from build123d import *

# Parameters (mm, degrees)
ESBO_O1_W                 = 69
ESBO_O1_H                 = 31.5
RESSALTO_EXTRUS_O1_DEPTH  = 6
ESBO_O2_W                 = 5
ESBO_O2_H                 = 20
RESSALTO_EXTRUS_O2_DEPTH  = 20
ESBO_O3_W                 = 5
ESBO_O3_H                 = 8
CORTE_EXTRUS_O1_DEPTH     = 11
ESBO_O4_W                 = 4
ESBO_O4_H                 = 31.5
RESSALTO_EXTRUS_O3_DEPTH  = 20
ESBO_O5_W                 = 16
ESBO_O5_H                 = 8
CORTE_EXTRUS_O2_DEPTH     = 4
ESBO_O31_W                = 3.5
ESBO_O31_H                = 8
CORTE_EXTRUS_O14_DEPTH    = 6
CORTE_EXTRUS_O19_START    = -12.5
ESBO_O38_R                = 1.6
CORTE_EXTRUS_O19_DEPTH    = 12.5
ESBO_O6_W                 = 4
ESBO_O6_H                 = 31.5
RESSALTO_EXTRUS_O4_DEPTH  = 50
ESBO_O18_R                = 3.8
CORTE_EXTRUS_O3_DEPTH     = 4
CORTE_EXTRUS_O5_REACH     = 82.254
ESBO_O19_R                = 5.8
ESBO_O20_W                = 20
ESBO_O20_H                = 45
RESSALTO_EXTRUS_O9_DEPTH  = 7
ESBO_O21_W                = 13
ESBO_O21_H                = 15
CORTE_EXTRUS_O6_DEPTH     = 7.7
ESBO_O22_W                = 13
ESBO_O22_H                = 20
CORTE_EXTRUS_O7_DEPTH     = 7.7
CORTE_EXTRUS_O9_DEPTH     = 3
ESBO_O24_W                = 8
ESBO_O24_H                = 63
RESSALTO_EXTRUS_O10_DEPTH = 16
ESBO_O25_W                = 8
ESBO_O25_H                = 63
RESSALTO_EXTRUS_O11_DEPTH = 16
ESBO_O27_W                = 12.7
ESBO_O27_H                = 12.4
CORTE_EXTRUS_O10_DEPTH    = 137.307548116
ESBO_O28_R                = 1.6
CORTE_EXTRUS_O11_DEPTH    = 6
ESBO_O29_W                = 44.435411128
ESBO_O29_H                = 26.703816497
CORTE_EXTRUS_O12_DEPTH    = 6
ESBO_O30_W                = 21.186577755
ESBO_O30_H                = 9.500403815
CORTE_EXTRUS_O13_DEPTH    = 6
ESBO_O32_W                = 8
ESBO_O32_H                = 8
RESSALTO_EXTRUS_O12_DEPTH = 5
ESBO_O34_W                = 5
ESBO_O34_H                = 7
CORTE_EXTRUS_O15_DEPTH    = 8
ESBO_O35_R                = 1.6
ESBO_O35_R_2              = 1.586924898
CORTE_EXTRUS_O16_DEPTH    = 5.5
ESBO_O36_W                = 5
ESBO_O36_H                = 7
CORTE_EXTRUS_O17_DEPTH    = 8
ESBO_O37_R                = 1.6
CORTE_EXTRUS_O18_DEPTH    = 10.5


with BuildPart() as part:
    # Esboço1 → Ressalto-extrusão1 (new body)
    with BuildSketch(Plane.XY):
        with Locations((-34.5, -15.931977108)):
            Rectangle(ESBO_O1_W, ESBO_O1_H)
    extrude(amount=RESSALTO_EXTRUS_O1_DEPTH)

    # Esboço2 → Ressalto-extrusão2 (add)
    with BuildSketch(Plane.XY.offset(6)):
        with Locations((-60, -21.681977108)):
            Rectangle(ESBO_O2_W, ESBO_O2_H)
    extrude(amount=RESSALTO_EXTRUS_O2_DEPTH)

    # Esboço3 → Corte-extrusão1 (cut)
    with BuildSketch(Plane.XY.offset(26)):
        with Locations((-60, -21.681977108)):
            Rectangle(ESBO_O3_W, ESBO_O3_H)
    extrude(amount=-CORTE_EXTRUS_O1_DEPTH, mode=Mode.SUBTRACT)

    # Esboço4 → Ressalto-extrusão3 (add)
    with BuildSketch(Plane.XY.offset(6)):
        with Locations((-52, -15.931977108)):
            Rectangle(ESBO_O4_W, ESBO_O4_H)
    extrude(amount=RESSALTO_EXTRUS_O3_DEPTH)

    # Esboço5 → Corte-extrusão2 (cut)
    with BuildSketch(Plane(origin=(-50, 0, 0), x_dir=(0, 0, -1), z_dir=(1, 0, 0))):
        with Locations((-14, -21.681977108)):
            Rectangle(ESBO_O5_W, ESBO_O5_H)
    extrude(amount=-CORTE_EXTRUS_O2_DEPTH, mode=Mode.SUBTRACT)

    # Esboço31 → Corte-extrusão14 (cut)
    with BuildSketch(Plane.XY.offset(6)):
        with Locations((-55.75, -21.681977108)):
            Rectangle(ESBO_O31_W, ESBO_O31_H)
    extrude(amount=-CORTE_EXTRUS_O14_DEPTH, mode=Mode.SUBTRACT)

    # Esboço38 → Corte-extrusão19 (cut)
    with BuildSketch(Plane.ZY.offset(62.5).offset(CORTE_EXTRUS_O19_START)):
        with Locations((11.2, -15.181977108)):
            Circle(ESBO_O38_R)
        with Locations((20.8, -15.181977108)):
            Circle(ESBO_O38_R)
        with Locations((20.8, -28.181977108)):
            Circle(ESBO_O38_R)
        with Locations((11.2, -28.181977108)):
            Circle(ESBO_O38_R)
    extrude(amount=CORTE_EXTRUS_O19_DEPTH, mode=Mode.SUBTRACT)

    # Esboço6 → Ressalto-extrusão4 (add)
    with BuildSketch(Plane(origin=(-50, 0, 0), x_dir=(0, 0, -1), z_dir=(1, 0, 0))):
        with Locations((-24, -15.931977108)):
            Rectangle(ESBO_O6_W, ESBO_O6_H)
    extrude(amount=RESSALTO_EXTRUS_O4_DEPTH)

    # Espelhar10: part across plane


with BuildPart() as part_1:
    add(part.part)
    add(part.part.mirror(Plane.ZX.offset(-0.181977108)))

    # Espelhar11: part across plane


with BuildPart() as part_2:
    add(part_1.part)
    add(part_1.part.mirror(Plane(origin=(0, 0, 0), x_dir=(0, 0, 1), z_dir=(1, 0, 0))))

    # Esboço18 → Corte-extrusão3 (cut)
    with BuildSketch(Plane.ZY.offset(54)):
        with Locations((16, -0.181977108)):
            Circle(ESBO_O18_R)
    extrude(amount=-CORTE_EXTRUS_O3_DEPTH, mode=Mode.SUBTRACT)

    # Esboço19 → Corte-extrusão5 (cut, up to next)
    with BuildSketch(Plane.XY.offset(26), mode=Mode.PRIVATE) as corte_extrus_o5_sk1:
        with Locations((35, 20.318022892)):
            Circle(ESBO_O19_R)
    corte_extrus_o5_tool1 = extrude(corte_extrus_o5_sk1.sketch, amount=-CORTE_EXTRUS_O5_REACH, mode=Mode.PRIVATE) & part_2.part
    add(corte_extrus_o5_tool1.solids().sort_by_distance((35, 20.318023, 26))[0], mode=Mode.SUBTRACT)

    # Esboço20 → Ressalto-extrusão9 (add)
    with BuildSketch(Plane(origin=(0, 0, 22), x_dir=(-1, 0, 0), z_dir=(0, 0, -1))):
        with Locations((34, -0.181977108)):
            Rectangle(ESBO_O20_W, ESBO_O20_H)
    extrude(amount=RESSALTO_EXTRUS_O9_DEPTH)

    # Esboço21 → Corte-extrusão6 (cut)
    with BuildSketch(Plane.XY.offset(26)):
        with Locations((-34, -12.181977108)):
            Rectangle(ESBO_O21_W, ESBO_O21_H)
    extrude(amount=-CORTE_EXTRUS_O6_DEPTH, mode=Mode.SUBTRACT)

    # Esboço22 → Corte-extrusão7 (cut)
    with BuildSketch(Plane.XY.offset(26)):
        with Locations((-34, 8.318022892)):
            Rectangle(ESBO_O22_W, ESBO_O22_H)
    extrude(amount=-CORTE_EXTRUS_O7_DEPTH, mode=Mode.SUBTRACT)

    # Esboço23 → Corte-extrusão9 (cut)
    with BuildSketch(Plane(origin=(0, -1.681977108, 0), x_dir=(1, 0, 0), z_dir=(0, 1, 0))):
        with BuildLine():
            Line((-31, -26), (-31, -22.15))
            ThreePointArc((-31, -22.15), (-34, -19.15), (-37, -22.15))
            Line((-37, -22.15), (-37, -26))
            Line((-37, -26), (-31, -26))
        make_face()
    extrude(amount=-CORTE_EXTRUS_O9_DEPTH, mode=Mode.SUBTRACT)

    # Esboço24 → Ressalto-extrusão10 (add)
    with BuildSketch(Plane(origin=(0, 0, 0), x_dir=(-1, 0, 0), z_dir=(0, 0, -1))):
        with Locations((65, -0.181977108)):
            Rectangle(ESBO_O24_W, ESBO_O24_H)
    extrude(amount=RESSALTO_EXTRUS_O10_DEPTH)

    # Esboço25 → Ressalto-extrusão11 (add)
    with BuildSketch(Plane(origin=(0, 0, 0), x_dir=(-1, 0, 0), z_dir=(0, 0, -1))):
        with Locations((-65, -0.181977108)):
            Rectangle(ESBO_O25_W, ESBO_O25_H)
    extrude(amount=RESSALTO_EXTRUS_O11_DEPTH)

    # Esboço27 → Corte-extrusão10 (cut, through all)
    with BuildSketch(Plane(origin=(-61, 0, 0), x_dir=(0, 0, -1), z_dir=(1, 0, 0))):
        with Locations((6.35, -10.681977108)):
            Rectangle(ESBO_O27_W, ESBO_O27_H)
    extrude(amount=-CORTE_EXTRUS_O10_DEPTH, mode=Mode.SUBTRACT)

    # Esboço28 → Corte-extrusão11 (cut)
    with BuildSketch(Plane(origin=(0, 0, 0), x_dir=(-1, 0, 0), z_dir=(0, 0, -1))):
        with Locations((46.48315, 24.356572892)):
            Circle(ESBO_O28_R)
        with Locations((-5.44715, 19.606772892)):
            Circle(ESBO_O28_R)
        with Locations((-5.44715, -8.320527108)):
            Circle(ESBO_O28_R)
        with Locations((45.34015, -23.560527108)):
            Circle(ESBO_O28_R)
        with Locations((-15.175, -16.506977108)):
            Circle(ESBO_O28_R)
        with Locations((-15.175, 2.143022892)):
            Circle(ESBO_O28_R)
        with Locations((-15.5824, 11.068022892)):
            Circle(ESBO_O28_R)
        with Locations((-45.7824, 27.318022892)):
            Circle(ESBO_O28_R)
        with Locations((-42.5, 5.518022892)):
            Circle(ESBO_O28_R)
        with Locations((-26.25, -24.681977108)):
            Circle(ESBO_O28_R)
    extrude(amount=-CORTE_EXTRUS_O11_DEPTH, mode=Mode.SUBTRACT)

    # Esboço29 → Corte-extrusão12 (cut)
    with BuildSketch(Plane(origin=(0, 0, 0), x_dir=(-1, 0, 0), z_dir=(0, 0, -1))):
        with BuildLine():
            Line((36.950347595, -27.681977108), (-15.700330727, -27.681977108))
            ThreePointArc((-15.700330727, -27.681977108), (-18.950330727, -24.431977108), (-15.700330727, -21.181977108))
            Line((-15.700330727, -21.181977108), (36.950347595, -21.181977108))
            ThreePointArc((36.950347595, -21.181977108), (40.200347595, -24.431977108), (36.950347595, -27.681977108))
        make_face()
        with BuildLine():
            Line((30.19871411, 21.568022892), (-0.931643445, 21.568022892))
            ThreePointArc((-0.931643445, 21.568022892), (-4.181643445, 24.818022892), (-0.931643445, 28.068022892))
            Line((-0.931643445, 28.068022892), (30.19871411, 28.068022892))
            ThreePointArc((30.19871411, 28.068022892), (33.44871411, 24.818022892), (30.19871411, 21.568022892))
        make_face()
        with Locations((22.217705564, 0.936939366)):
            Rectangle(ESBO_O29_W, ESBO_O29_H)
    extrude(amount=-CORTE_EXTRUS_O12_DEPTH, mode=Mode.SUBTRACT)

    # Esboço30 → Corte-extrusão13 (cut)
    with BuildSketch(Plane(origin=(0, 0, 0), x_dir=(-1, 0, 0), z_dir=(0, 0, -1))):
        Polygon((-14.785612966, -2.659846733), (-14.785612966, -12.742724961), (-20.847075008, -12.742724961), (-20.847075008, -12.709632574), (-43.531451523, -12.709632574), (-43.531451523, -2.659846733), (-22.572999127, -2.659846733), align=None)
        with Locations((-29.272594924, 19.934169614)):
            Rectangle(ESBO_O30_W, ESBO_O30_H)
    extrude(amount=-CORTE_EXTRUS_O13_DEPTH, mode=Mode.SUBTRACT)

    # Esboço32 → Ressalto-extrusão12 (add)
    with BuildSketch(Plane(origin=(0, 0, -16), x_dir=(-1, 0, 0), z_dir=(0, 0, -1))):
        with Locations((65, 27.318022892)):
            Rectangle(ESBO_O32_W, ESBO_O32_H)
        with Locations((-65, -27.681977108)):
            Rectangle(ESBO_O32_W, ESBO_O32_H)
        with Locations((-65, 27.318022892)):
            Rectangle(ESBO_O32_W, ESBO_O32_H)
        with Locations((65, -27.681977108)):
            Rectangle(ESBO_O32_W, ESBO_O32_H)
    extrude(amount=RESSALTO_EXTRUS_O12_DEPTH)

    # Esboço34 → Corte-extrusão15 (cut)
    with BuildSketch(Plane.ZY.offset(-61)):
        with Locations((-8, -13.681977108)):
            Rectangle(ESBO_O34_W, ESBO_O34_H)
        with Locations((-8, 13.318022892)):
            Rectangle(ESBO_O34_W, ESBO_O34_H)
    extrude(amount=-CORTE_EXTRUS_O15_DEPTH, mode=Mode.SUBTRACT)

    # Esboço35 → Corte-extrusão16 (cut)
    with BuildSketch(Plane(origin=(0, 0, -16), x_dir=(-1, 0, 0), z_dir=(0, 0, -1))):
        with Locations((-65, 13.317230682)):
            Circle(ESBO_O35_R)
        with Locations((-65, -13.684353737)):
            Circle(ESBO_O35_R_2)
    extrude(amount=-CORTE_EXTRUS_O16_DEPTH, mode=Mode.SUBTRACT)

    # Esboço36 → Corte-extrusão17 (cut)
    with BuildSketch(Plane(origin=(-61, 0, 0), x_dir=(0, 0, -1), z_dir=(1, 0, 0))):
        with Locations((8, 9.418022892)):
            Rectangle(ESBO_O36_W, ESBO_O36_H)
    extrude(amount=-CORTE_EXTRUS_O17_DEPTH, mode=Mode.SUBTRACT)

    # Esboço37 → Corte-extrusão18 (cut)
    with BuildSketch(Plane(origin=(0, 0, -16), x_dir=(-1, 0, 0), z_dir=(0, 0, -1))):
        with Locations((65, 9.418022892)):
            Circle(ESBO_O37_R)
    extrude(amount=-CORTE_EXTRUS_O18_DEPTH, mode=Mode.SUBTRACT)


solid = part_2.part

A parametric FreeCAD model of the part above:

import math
import FreeCAD as App
import Part
import Sketcher

V = App.Vector
Q = App.Units.Quantity


def add_polygon(sketch, points):
    """Adds a closed chain of lines whose ends are joined by coincident constraints."""
    first, n = sketch.GeometryCount, len(points)
    for a, b in zip(points, points[1:] + points[:1]):
        sketch.addGeometry(Part.LineSegment(App.Vector(*a, 0), App.Vector(*b, 0)), False)
    for i in range(n):
        sketch.addConstraint(Sketcher.Constraint("Coincident", first + i, 2, first + (i + 1) % n, 1))

doc = App.newDocument("Part")
body = doc.addObject("PartDesign::Body", "Body")

sketch1 = body.newObject("Sketcher::SketchObject", "Sketch")
sketch1.AttachmentSupport = (doc.getObject("XY_Plane"), [""])
sketch1.MapMode = "FlatFace"
add_polygon(sketch1, [(-69, 0), (-69, -32), (0, -32), (0, 0)])
sketch1.addConstraint([
    Sketcher.Constraint("Vertical", 0),
    Sketcher.Constraint("Horizontal", 1),
    Sketcher.Constraint("Vertical", 2),
    Sketcher.Constraint("Horizontal", 3),
    Sketcher.Constraint("PointOnObject", 1, 2, -2),
    Sketcher.Constraint("DistanceX", 1, 1, 1, 2, Q("69 mm")),
    Sketcher.Constraint("DistanceY", 0, 2, 0, 1, Q("31.5 mm")),
    Sketcher.Constraint("DistanceY", 0, 2, -1, 1, Q("31.681977 mm")),
])
pad1 = body.newObject("PartDesign::Pad", "Pad")
pad1.Profile = sketch1
pad1.Length = 6

sketch2 = body.newObject("Sketcher::SketchObject", "Sketch001")
sketch2.AttachmentSupport = (doc.getObject("XY_Plane"), [""])
sketch2.MapMode = "FlatFace"
sketch2.AttachmentOffset = App.Placement(V(0, 0, 6), App.Rotation())
add_polygon(sketch2, [(-62, -12), (-62, -32), (-58, -32), (-58, -12)])
sketch2.addConstraint([
    Sketcher.Constraint("Vertical", 0),
    Sketcher.Constraint("Horizontal", 1),
    Sketcher.Constraint("Vertical", 2),
    Sketcher.Constraint("Horizontal", 3),
    Sketcher.Constraint("DistanceX", 1, 1, 1, 2, Q("5 mm")),
    Sketcher.Constraint("DistanceY", 0, 2, 0, 1, Q("20 mm")),
    Sketcher.Constraint("DistanceX", 0, 2, -1, 1, Q("62.5 mm")),
    Sketcher.Constraint("DistanceY", 0, 2, -1, 1, Q("31.681977 mm")),
])
pad2 = body.newObject("PartDesign::Pad", "Pad001")
pad2.Profile = sketch2
pad2.Length = 20

sketch3 = body.newObject("Sketcher::SketchObject", "Sketch002")
sketch3.AttachmentSupport = (doc.getObject("XY_Plane"), [""])
sketch3.MapMode = "FlatFace"
sketch3.AttachmentOffset = App.Placement(V(0, 0, 26), App.Rotation())
add_polygon(sketch3, [(-62, -18), (-62, -26), (-58, -26), (-58, -18)])
sketch3.addConstraint([
    Sketcher.Constraint("Vertical", 0),
    Sketcher.Constraint("Horizontal", 1),
    Sketcher.Constraint("Vertical", 2),
    Sketcher.Constraint("Horizontal", 3),
    Sketcher.Constraint("DistanceX", 1, 1, 1, 2, Q("5 mm")),
    Sketcher.Constraint("DistanceY", 0, 2, 0, 1, Q("8 mm")),
    Sketcher.Constraint("DistanceX", 0, 2, -1, 1, Q("62.5 mm")),
    Sketcher.Constraint("DistanceY", 0, 2, -1, 1, Q("25.681977 mm")),
])
pocket1 = body.newObject("PartDesign::Pocket", "Pocket")
pocket1.Profile = sketch3
pocket1.Length = 11

sketch4 = body.newObject("Sketcher::SketchObject", "Sketch003")
sketch4.AttachmentSupport = (doc.getObject("XY_Plane"), [""])
sketch4.MapMode = "FlatFace"
sketch4.AttachmentOffset = App.Placement(V(0, 0, 6), App.Rotation())
add_polygon(sketch4, [(-54, -0.2), (-54, -31.7), (-50, -31.7), (-50, -0.2)])
sketch4.addConstraint([
    Sketcher.Constraint("Vertical", 0),
    Sketcher.Constraint("Horizontal", 1),
    Sketcher.Constraint("Vertical", 2),
    Sketcher.Constraint("Horizontal", 3),
    Sketcher.Constraint("DistanceX", 1, 1, 1, 2, Q("4 mm")),
    Sketcher.Constraint("DistanceY", 0, 2, 0, 1, Q("31.5 mm")),
    Sketcher.Constraint("DistanceX", 0, 2, -1, 1, Q("54 mm")),
    Sketcher.Constraint("DistanceY", 0, 2, -1, 1, Q("31.681977 mm")),
])
pad3 = body.newObject("PartDesign::Pad", "Pad002")
pad3.Profile = sketch4
pad3.Length = 20

sketch5 = body.newObject("Sketcher::SketchObject", "Sketch004")
sketch5.AttachmentSupport = (doc.getObject("YZ_Plane"), [""])
sketch5.MapMode = "FlatFace"
sketch5.AttachmentOffset = App.Placement(V(0, 0, -50), App.Rotation())
add_polygon(sketch5, [(-18, 22), (-26, 22), (-26, 6), (-18, 6)])
sketch5.addConstraint([
    Sketcher.Constraint("Horizontal", 0),
    Sketcher.Constraint("Vertical", 1),
    Sketcher.Constraint("Horizontal", 2),
    Sketcher.Constraint("Vertical", 3),
    Sketcher.Constraint("DistanceX", 0, 2, 0, 1, Q("8 mm")),
    Sketcher.Constraint("DistanceY", 1, 2, 1, 1, Q("16 mm")),
    Sketcher.Constraint("DistanceY", -1, 1, 0, 2, Q("22 mm")),
    Sketcher.Constraint("DistanceX", 0, 2, -1, 1, Q("25.681977 mm")),
])
pocket2 = body.newObject("PartDesign::Pocket", "Pocket001")
pocket2.Profile = sketch5
pocket2.Length = 4

sketch6 = body.newObject("Sketcher::SketchObject", "Sketch005")
sketch6.AttachmentSupport = (doc.getObject("XY_Plane"), [""])
sketch6.MapMode = "FlatFace"
sketch6.AttachmentOffset = App.Placement(V(0, 0, 6), App.Rotation())
add_polygon(sketch6, [(-57.5, -17.7), (-57.5, -25.7), (-54, -25.7), (-54, -17.7)])
sketch6.addConstraint([
    Sketcher.Constraint("Vertical", 0),
    Sketcher.Constraint("Horizontal", 1),
    Sketcher.Constraint("Vertical", 2),
    Sketcher.Constraint("Horizontal", 3),
    Sketcher.Constraint("DistanceY", 0, 2, 0, 1, Q("8 mm")),
    Sketcher.Constraint("DistanceX", 1, 1, 1, 2, Q("3.5 mm")),
    Sketcher.Constraint("DistanceX", 1, 2, -1, 1, Q("54 mm")),
    Sketcher.Constraint("DistanceY", 0, 2, -1, 1, Q("25.681977 mm")),
])
pocket3 = body.newObject("PartDesign::Pocket", "Pocket002")
pocket3.Profile = sketch6
pocket3.Length = 6

sketch7 = body.newObject("Sketcher::SketchObject", "Sketch006")
sketch7.AttachmentSupport = (doc.getObject("YZ_Plane"), [""])
sketch7.MapMode = "FlatFace"
sketch7.AttachmentOffset = App.Placement(V(0, 0, -50), App.Rotation())
sketch7.addGeometry([
    Part.Circle(V(-15.2, 11.2, 0), V(0, 0, 1), 1.6),
    Part.Circle(V(-15.2, 20.8, 0), V(0, 0, 1), 1.6),
    Part.Circle(V(-28.2, 20.8, 0), V(0, 0, 1), 1.6),
    Part.Circle(V(-28.2, 11.2, 0), V(0, 0, 1), 1.6),
], False)
sketch7.addConstraint([
    Sketcher.Constraint("Equal", 0, 1),
    Sketcher.Constraint("Equal", 1, 2),
    Sketcher.Constraint("Equal", 2, 3),
    Sketcher.Constraint("Horizontal", 1, 3, 2, 3),
    Sketcher.Constraint("Horizontal", 0, 3, 3, 3),
    Sketcher.Constraint("Vertical", 0, 3, 1, 3),
    Sketcher.Constraint("Vertical", 2, 3, 3, 3),
    Sketcher.Constraint("Diameter", 0, Q("3.2 mm")),
    Sketcher.Constraint("DistanceX", 2, 3, 1, 3, Q("13 mm")),
    Sketcher.Constraint("DistanceY", -1, 1, 0, 3, Q("11.2 mm")),
    Sketcher.Constraint("DistanceY", -1, 1, 1, 3, Q("20.8 mm")),
    Sketcher.Constraint("DistanceX", 0, 3, -1, 1, Q("15.181977 mm")),
])
pocket4 = body.newObject("PartDesign::Pocket", "Pocket003")
pocket4.Profile = sketch7
pocket4.Length = 12.5

sketch8 = body.newObject("Sketcher::SketchObject", "Sketch007")
sketch8.AttachmentSupport = (doc.getObject("YZ_Plane"), [""])
sketch8.MapMode = "FlatFace"
sketch8.AttachmentOffset = App.Placement(V(0, 0, -50), App.Rotation())
add_polygon(sketch8, [(-0.2, 26), (-31.7, 26), (-31.7, 22), (-0.2, 22)])
sketch8.addConstraint([
    Sketcher.Constraint("Horizontal", 0),
    Sketcher.Constraint("Vertical", 1),
    Sketcher.Constraint("Horizontal", 2),
    Sketcher.Constraint("Vertical", 3),
    Sketcher.Constraint("DistanceY", 1, 2, 1, 1, Q("4 mm")),
    Sketcher.Constraint("DistanceX", 0, 2, 0, 1, Q("31.5 mm")),
    Sketcher.Constraint("DistanceY", -1, 1, 0, 2, Q("26 mm")),
    Sketcher.Constraint("DistanceX", 0, 2, -1, 1, Q("31.681977 mm")),
])
pad4 = body.newObject("PartDesign::Pad", "Pad003")
pad4.Profile = sketch8
pad4.Length = 50
body2 = doc.addObject("PartDesign::Body", "Body001")
doc.recompute()

body2.BaseFeature = body
doc.recompute()

mirroring = doc.addObject("Part::Mirroring", "Mirroring")
mirroring.Source = body
mirroring.Base = V(0, -0.181977, 0)
mirroring.Normal = V(0, 1, 0)
body3 = doc.addObject("PartDesign::Body", "Body002")
body3.BaseFeature = mirroring
boolean = body2.newObject("PartDesign::Boolean", "Boolean")
boolean.Type = "Fuse"
boolean.addObjects([body3])
doc.recompute()
body4 = doc.addObject("PartDesign::Body", "Body003")
doc.recompute()

body4.BaseFeature = body2
doc.recompute()

mirroring2 = doc.addObject("Part::Mirroring", "Mirroring001")
mirroring2.Source = body2
mirroring2.Base = V(0, 0, 0)
mirroring2.Normal = V(1, 0, 0)
body5 = doc.addObject("PartDesign::Body", "Body004")
body5.BaseFeature = mirroring2
boolean2 = body4.newObject("PartDesign::Boolean", "Boolean001")
boolean2.Type = "Fuse"
boolean2.addObjects([body5])
doc.recompute()

sketch9 = body4.newObject("Sketcher::SketchObject", "Sketch008")
sketch9.AttachmentSupport = (doc.getObject("YZ_Plane003"), [""])
sketch9.MapMode = "FlatFace"
sketch9.AttachmentOffset = App.Placement(V(0, 0, -54), App.Rotation())
sketch9.addGeometry(Part.Circle(V(-0.2, 16, 0), V(0, 0, 1), 3.8), False)
sketch9.addConstraint([
    Sketcher.Constraint("Diameter", 0, Q("7.6 mm")),
    Sketcher.Constraint("DistanceY", -1, 1, 0, 3, Q("16 mm")),
    Sketcher.Constraint("DistanceX", 0, 3, -1, 1, Q("0.181977 mm")),
])
pocket5 = body4.newObject("PartDesign::Pocket", "Pocket004")
pocket5.Profile = sketch9
pocket5.Length = 4
pocket5.Reversed = True

sketch10 = body4.newObject("Sketcher::SketchObject", "Sketch009")
sketch10.AttachmentSupport = (doc.getObject("XY_Plane003"), [""])
sketch10.MapMode = "FlatFace"
sketch10.AttachmentOffset = App.Placement(V(0, 0, 26), App.Rotation())
sketch10.addGeometry(Part.Circle(V(35, 20, 0), V(0, 0, 1), 6), False)
sketch10.addConstraint([
    Sketcher.Constraint("Diameter", 0, Q("11.6 mm")),
    Sketcher.Constraint("DistanceX", -1, 1, 0, 3, Q("35 mm")),
    Sketcher.Constraint("DistanceY", -1, 1, 0, 3, Q("20.318023 mm")),
])
pocket6 = body4.newObject("PartDesign::Pocket", "Pocket005")
pocket6.Profile = sketch10
pocket6.Type = "UpToFirst"

sketch11 = body4.newObject("Sketcher::SketchObject", "Sketch010")
sketch11.AttachmentSupport = (doc.getObject("XY_Plane003"), [""])
sketch11.MapMode = "FlatFace"
sketch11.AttachmentOffset = App.Placement(V(0, 0, 22), App.Rotation())
add_polygon(sketch11, [(-24, 22), (-24, -23), (-44, -23), (-44, 22)])
sketch11.addConstraint([
    Sketcher.Constraint("Vertical", 0),
    Sketcher.Constraint("Horizontal", 1),
    Sketcher.Constraint("Vertical", 2),
    Sketcher.Constraint("Horizontal", 3),
    Sketcher.Constraint("DistanceX", 1, 2, 1, 1, Q("20 mm")),
    Sketcher.Constraint("DistanceY", 0, 2, 0, 1, Q("45 mm")),
    Sketcher.Constraint("DistanceX", 0, 2, -1, 1, Q("24 mm")),
    Sketcher.Constraint("DistanceY", 0, 2, -1, 1, Q("22.681977 mm")),
])
pad5 = body4.newObject("PartDesign::Pad", "Pad004")
pad5.Profile = sketch11
pad5.Length = 7
pad5.Reversed = True

sketch12 = body4.newObject("Sketcher::SketchObject", "Sketch011")
sketch12.AttachmentSupport = (doc.getObject("XY_Plane003"), [""])
sketch12.MapMode = "FlatFace"
sketch12.AttachmentOffset = App.Placement(V(0, 0, 26), App.Rotation())
add_polygon(sketch12, [(-40, -5), (-40, -20), (-28, -20), (-28, -5)])
sketch12.addConstraint([
    Sketcher.Constraint("Vertical", 0),
    Sketcher.Constraint("Horizontal", 1),
    Sketcher.Constraint("Vertical", 2),
    Sketcher.Constraint("Horizontal", 3),
    Sketcher.Constraint("DistanceX", 1, 1, 1, 2, Q("13 mm")),
    Sketcher.Constraint("DistanceY", 0, 2, 0, 1, Q("15 mm")),
    Sketcher.Constraint("DistanceX", 0, 2, -1, 1, Q("40.5 mm")),
    Sketcher.Constraint("DistanceY", 0, 2, -1, 1, Q("19.681977 mm")),
])
pocket7 = body4.newObject("PartDesign::Pocket", "Pocket006")
pocket7.Profile = sketch12
pocket7.Length = 7.7

sketch13 = body4.newObject("Sketcher::SketchObject", "Sketch012")
sketch13.AttachmentSupport = (doc.getObject("XY_Plane003"), [""])
sketch13.MapMode = "FlatFace"
sketch13.AttachmentOffset = App.Placement(V(0, 0, 26), App.Rotation())
add_polygon(sketch13, [(-40, 18), (-40, -2), (-28, -2), (-28, 18)])
sketch13.addConstraint([
    Sketcher.Constraint("Vertical", 0),
    Sketcher.Constraint("Horizontal", 1),
    Sketcher.Constraint("Vertical", 2),
    Sketcher.Constraint("Horizontal", 3),
    Sketcher.Constraint("DistanceX", 1, 1, 1, 2, Q("13 mm")),
    Sketcher.Constraint("DistanceY", 0, 2, 0, 1, Q("20 mm")),
    Sketcher.Constraint("DistanceX", 0, 2, -1, 1, Q("40.5 mm")),
    Sketcher.Constraint("DistanceY", 0, 2, -1, 1, Q("1.681977 mm")),
])
pocket8 = body4.newObject("PartDesign::Pocket", "Pocket007")
pocket8.Profile = sketch13
pocket8.Length = 7.7

sketch14 = body4.newObject("Sketcher::SketchObject", "Sketch013")
sketch14.AttachmentSupport = (doc.getObject("XZ_Plane003"), [""])
sketch14.MapMode = "FlatFace"
sketch14.AttachmentOffset = App.Placement(V(0, 0, 1.681977), App.Rotation())
sketch14.addGeometry([
    Part.LineSegment(V(-31, 26, 0), V(-31, 22.1, 0)),
    Part.ArcOfCircle(Part.Circle(V(-34, 22.1, 0), V(0, 0, 1), 3), math.radians(180), math.radians(360)),
    Part.LineSegment(V(-37, 22.1, 0), V(-37, 26, 0)),
    Part.LineSegment(V(-37, 26, 0), V(-31, 26, 0)),
], False)
sketch14.addConstraint([
    Sketcher.Constraint("Tangent", 0, 2, 1, 2),
    Sketcher.Constraint("Tangent", 1, 1, 2, 1),
    Sketcher.Constraint("Coincident", 2, 2, 3, 1),
    Sketcher.Constraint("Coincident", 3, 2, 0, 1),
    Sketcher.Constraint("Vertical", 0),
    Sketcher.Constraint("Vertical", 2),
    Sketcher.Constraint("Horizontal", 3),
    Sketcher.Constraint("Radius", 1, Q("3 mm")),
    Sketcher.Constraint("DistanceX", 1, 3, -1, 1, Q("34 mm")),
    Sketcher.Constraint("DistanceY", -1, 1, 2, 2, Q("26 mm")),
    Sketcher.Constraint("DistanceY", 0, 2, 0, 1, Q("3.85 mm")),
])
pocket9 = body4.newObject("PartDesign::Pocket", "Pocket008")
pocket9.Profile = sketch14
pocket9.Length = 3
pocket9.Reversed = True

sketch15 = body4.newObject("Sketcher::SketchObject", "Sketch014")
sketch15.AttachmentSupport = (doc.getObject("XY_Plane003"), [""])
sketch15.MapMode = "FlatFace"
add_polygon(sketch15, [(-61, 31), (-61, -32), (-69, -32), (-69, 31)])
sketch15.addConstraint([
    Sketcher.Constraint("Vertical", 0),
    Sketcher.Constraint("Horizontal", 1),
    Sketcher.Constraint("Vertical", 2),
    Sketcher.Constraint("Horizontal", 3),
    Sketcher.Constraint("DistanceX", 1, 2, 1, 1, Q("8 mm")),
    Sketcher.Constraint("DistanceY", 0, 2, 0, 1, Q("63 mm")),
    Sketcher.Constraint("DistanceX", 0, 2, -1, 1, Q("61 mm")),
    Sketcher.Constraint("DistanceY", 0, 2, -1, 1, Q("31.681977 mm")),
])
pad6 = body4.newObject("PartDesign::Pad", "Pad005")
pad6.Profile = sketch15
pad6.Length = 16
pad6.Reversed = True

sketch16 = body4.newObject("Sketcher::SketchObject", "Sketch015")
sketch16.AttachmentSupport = (doc.getObject("XY_Plane003"), [""])
sketch16.MapMode = "FlatFace"
add_polygon(sketch16, [(69, 31), (69, -32), (61, -32), (61, 31)])
sketch16.addConstraint([
    Sketcher.Constraint("Vertical", 0),
    Sketcher.Constraint("Horizontal", 1),
    Sketcher.Constraint("Vertical", 2),
    Sketcher.Constraint("Horizontal", 3),
    Sketcher.Constraint("DistanceX", 1, 2, 1, 1, Q("8 mm")),
    Sketcher.Constraint("DistanceY", 0, 2, 0, 1, Q("63 mm")),
    Sketcher.Constraint("DistanceX", -1, 1, 0, 2, Q("69 mm")),
    Sketcher.Constraint("DistanceY", 0, 2, -1, 1, Q("31.681977 mm")),
])
pad7 = body4.newObject("PartDesign::Pad", "Pad006")
pad7.Profile = sketch16
pad7.Length = 16
pad7.Reversed = True

sketch17 = body4.newObject("Sketcher::SketchObject", "Sketch016")
sketch17.AttachmentSupport = (doc.getObject("YZ_Plane003"), [""])
sketch17.MapMode = "FlatFace"
sketch17.AttachmentOffset = App.Placement(V(0, 0, -61), App.Rotation())
add_polygon(sketch17, [(-4, 0), (-17, 0), (-17, -13), (-4, -13)])
sketch17.addConstraint([
    Sketcher.Constraint("Horizontal", 0),
    Sketcher.Constraint("Vertical", 1),
    Sketcher.Constraint("Horizontal", 2),
    Sketcher.Constraint("Vertical", 3),
    Sketcher.Constraint("PointOnObject", 0, 2, -1),
    Sketcher.Constraint("DistanceX", 0, 2, 0, 1, Q("12.4 mm")),
    Sketcher.Constraint("DistanceY", 1, 2, 1, 1, Q("12.7 mm")),
    Sketcher.Constraint("DistanceX", 0, 2, -1, 1, Q("16.881977 mm")),
])
pocket10 = body4.newObject("PartDesign::Pocket", "Pocket009")
pocket10.Profile = sketch17
pocket10.Type = "ThroughAll"

sketch18 = body4.newObject("Sketcher::SketchObject", "Sketch017")
sketch18.AttachmentSupport = (doc.getObject("XY_Plane003"), [""])
sketch18.MapMode = "FlatFace"
sketch18.addGeometry([
    Part.Circle(V(-46.5, 24.4, 0), V(0, 0, 1), 1.6),
    Part.Circle(V(5.4, 19.6, 0), V(0, 0, 1), 1.6),
    Part.Circle(V(5.4, -8.3, 0), V(0, 0, 1), 1.6),
    Part.Circle(V(-45.3, -23.6, 0), V(0, 0, 1), 1.6),
    Part.Circle(V(15.2, -16.5, 0), V(0, 0, 1), 1.6),
    Part.Circle(V(15.2, 2.1, 0), V(0, 0, 1), 1.6),
    Part.Circle(V(15.6, 11.1, 0), V(0, 0, 1), 1.6),
    Part.Circle(V(45.8, 27.3, 0), V(0, 0, 1), 1.6),
    Part.Circle(V(42.5, 5.5, 0), V(0, 0, 1), 1.6),
    Part.Circle(V(26.2, -24.7, 0), V(0, 0, 1), 1.6),
], False)
sketch18.addConstraint([
    Sketcher.Constraint("Equal", 0, 1),
    Sketcher.Constraint("Equal", 1, 2),
    Sketcher.Constraint("Equal", 2, 3),
    Sketcher.Constraint("Equal", 3, 4),
    Sketcher.Constraint("Equal", 4, 5),
    Sketcher.Constraint("Equal", 5, 6),
    Sketcher.Constraint("Equal", 6, 7),
    Sketcher.Constraint("Equal", 7, 8),
    Sketcher.Constraint("Equal", 8, 9),
    Sketcher.Constraint("Vertical", 1, 3, 2, 3),
    Sketcher.Constraint("Vertical", 4, 3, 5, 3),
    Sketcher.Constraint("Diameter", 0, Q("3.2 mm")),
    Sketcher.Constraint("DistanceX", -1, 1, 8, 3, Q("42.5 mm")),
    Sketcher.Constraint("DistanceX", 6, 3, 7, 3, Q("30.2 mm")),
    Sketcher.Constraint("DistanceY", 8, 3, 7, 3, Q("21.8 mm")),
    Sketcher.Constraint("DistanceY", 9, 3, 8, 3, Q("30.2 mm")),
    Sketcher.Constraint("DistanceX", -1, 1, 9, 3, Q("26.25 mm")),
    Sketcher.Constraint("DistanceY", 3, 3, 2, 3, Q("15.24 mm")),
    Sketcher.Constraint("DistanceY", 4, 3, 5, 3, Q("18.65 mm")),
    Sketcher.Constraint("DistanceY", 6, 3, 7, 3, Q("16.25 mm")),
    Sketcher.Constraint("DistanceX", -1, 1, 4, 3, Q("15.175 mm")),
    Sketcher.Constraint("DistanceX", 0, 3, 3, 3, Q("1.143 mm")),
    Sketcher.Constraint("DistanceY", 5, 3, 6, 3, Q("8.925 mm")),
    Sketcher.Constraint("DistanceX", -1, 1, 6, 3, Q("15.5824 mm")),
    Sketcher.Constraint("DistanceX", 0, 3, 1, 3, Q("51.9303 mm")),
    Sketcher.Constraint("DistanceY", 1, 3, 0, 3, Q("4.7498 mm")),
    Sketcher.Constraint("DistanceY", 2, 3, 1, 3, Q("27.9273 mm")),
    Sketcher.Constraint("DistanceX", 0, 3, -1, 1, Q("46.48315 mm")),
    Sketcher.Constraint("DistanceY", 4, 3, 2, 3, Q("8.18645 mm")),
    Sketcher.Constraint("DistanceY", -1, 1, 0, 3, Q("24.356573 mm")),
])
pocket11 = body4.newObject("PartDesign::Pocket", "Pocket010")
pocket11.Profile = sketch18
pocket11.Length = 6
pocket11.Reversed = True

sketch19 = body4.newObject("Sketcher::SketchObject", "Sketch018")
sketch19.AttachmentSupport = (doc.getObject("XY_Plane003"), [""])
sketch19.MapMode = "FlatFace"
sketch19.addGeometry(Part.LineSegment(V(15.7, -27.7, 0), V(-37, -27.7, 0)), False)
sketch19.addGeometry(Part.ArcOfCircle(Part.Circle(V(-37, -24.4, 0), V(0, 0, 1), 3.2), math.radians(90), math.radians(270)), False)
sketch19.addGeometry(Part.LineSegment(V(-37, -21.2, 0), V(15.7, -21.2, 0)), False)
sketch19.addGeometry(Part.ArcOfCircle(Part.Circle(V(15.7, -24.4, 0), V(0, 0, 1), 3.2), math.radians(-90), math.radians(90)), False)
sketch19.addGeometry(Part.LineSegment(V(0.9, 21.6, 0), V(-30.2, 21.6, 0)), False)
sketch19.addGeometry(Part.ArcOfCircle(Part.Circle(V(-30.2, 24.8, 0), V(0, 0, 1), 3.2), math.radians(90), math.radians(270)), False)
sketch19.addGeometry(Part.LineSegment(V(-30.2, 28.1, 0), V(0.9, 28.1, 0)), False)
sketch19.addGeometry(Part.ArcOfCircle(Part.Circle(V(0.9, 24.8, 0), V(0, 0, 1), 3.2), math.radians(-90), math.radians(90)), False)
add_polygon(sketch19, [(0, 14.3), (0, -12.4), (-44.4, -12.4), (-44.4, 14.3)])
sketch19.addConstraint([
    Sketcher.Constraint("Tangent", 0, 2, 1, 2),
    Sketcher.Constraint("Tangent", 1, 1, 2, 1),
    Sketcher.Constraint("Tangent", 2, 2, 3, 2),
    Sketcher.Constraint("Tangent", 3, 1, 0, 1),
    Sketcher.Constraint("Tangent", 4, 2, 5, 2),
    Sketcher.Constraint("Tangent", 5, 1, 6, 1),
    Sketcher.Constraint("Tangent", 6, 2, 7, 2),
    Sketcher.Constraint("Tangent", 7, 1, 4, 1),
    Sketcher.Constraint("Horizontal", 0),
    Sketcher.Constraint("Horizontal", 2),
    Sketcher.Constraint("Horizontal", 4),
    Sketcher.Constraint("Horizontal", 6),
    Sketcher.Constraint("Vertical", 8),
    Sketcher.Constraint("Horizontal", 9),
    Sketcher.Constraint("Vertical", 10),
    Sketcher.Constraint("Horizontal", 11),
    Sketcher.Constraint("Equal", 3, 5),
    Sketcher.Constraint("PointOnObject", 8, 2, -2),
    Sketcher.Constraint("Radius", 1, Q("3.25 mm")),
    Sketcher.Constraint("DistanceY", 1, 1, 5, 3, Q("46 mm")),
    Sketcher.Constraint("DistanceX", 0, 2, 0, 1, Q("52.650678 mm")),
    Sketcher.Constraint("DistanceX", 9, 2, 9, 1, Q("44.435411 mm")),
    Sketcher.Constraint("DistanceX", 4, 2, 4, 1, Q("31.130358 mm")),
    Sketcher.Constraint("DistanceY", 8, 2, 8, 1, Q("26.703816 mm")),
    Sketcher.Constraint("DistanceX", -1, 1, 3, 3, Q("15.700331 mm")),
    Sketcher.Constraint("DistanceY", 8, 2, -1, 1, Q("12.414969 mm")),
    Sketcher.Constraint("DistanceX", 1, 3, 7, 3, Q("37.881991 mm")),
    Sketcher.Constraint("DistanceY", 2, 2, 8, 2, Q("8.767008 mm")),
])
pocket12 = body4.newObject("PartDesign::Pocket", "Pocket011")
pocket12.Profile = sketch19
pocket12.Length = 6
pocket12.Reversed = True

sketch20 = body4.newObject("Sketcher::SketchObject", "Sketch019")
sketch20.AttachmentSupport = (doc.getObject("XY_Plane003"), [""])
sketch20.MapMode = "FlatFace"
add_polygon(sketch20, [(14.786, -12.743), (14.786, -2.66), (43.531, -2.66), (43.531, -12.71), (20.847, -12.71), (20.847, -12.743)])
add_polygon(sketch20, [(39.866, 24.684), (39.866, 15.184), (18.679, 15.184), (18.679, 24.684)])
sketch20.addConstraint([
    Sketcher.Constraint("Vertical", 0),
    Sketcher.Constraint("Horizontal", 1),
    Sketcher.Constraint("Vertical", 2),
    Sketcher.Constraint("Horizontal", 3),
    Sketcher.Constraint("Vertical", 4),
    Sketcher.Constraint("Horizontal", 5),
    Sketcher.Constraint("Vertical", 6),
    Sketcher.Constraint("Horizontal", 7),
    Sketcher.Constraint("Vertical", 8),
    Sketcher.Constraint("Horizontal", 9),
    Sketcher.Constraint("DistanceX", 1, 1, 1, 2, Q("28.745839 mm")),
    Sketcher.Constraint("DistanceY", 0, 1, 0, 2, Q("10.082878 mm")),
    Sketcher.Constraint("DistanceY", 2, 2, 6, 2, Q("27.8936 mm")),
    Sketcher.Constraint("DistanceX", 3, 2, 3, 1, Q("22.684377 mm")),
    Sketcher.Constraint("DistanceX", 7, 2, 7, 1, Q("21.186578 mm")),
    Sketcher.Constraint("DistanceY", 2, 2, 2, 1, Q("10.049786 mm")),
    Sketcher.Constraint("DistanceY", 6, 2, 6, 1, Q("9.500404 mm")),
    Sketcher.Constraint("DistanceX", -1, 1, 1, 2, Q("43.531452 mm")),
    Sketcher.Constraint("DistanceY", -1, 1, 8, 2, Q("24.684372 mm")),
    Sketcher.Constraint("DistanceX", 0, 2, 6, 2, Q("25.080271 mm")),
])
pocket13 = body4.newObject("PartDesign::Pocket", "Pocket012")
pocket13.Profile = sketch20
pocket13.Length = 6
pocket13.Reversed = True

sketch21 = body4.newObject("Sketcher::SketchObject", "Sketch020")
sketch21.AttachmentSupport = (doc.getObject("XY_Plane003"), [""])
sketch21.MapMode = "FlatFace"
sketch21.AttachmentOffset = App.Placement(V(0, 0, -16), App.Rotation())
add_polygon(sketch21, [(-61, 31), (-61, 23), (-69, 23), (-69, 31)])
add_polygon(sketch21, [(69, -24), (69, -32), (61, -32), (61, -24)])
add_polygon(sketch21, [(69, 31), (69, 23), (61, 23), (61, 31)])
add_polygon(sketch21, [(-61, -24), (-61, -32), (-69, -32), (-69, -24)])
sketch21.addConstraint([
    Sketcher.Constraint("Vertical", 0),
    Sketcher.Constraint("Horizontal", 1),
    Sketcher.Constraint("Vertical", 2),
    Sketcher.Constraint("Horizontal", 3),
    Sketcher.Constraint("Vertical", 4),
    Sketcher.Constraint("Horizontal", 5),
    Sketcher.Constraint("Vertical", 6),
    Sketcher.Constraint("Horizontal", 7),
    Sketcher.Constraint("Vertical", 8),
    Sketcher.Constraint("Horizontal", 9),
    Sketcher.Constraint("Vertical", 10),
    Sketcher.Constraint("Horizontal", 11),
    Sketcher.Constraint("Vertical", 12),
    Sketcher.Constraint("Horizontal", 13),
    Sketcher.Constraint("Vertical", 14),
    Sketcher.Constraint("Horizontal", 15),
    Sketcher.Constraint("Symmetric", 1, 2, 8, 2, -2),
    Sketcher.Constraint("Symmetric", 3, 2, 10, 2, -2),
    Sketcher.Constraint("Symmetric", 5, 2, 12, 2, -2),
    Sketcher.Constraint("Symmetric", 7, 2, 14, 2, -2),
    Sketcher.Constraint("Vertical", 7, 2, 8, 2),
    Sketcher.Constraint("Vertical", 6, 2, 9, 2),
    Sketcher.Constraint("Equal", 15, 0),
    Sketcher.Constraint("Equal", 2, 4),
    Sketcher.Constraint("DistanceX", 1, 2, 1, 1, Q("8 mm")),
    Sketcher.Constraint("DistanceX", 0, 2, -1, 1, Q("61 mm")),
    Sketcher.Constraint("DistanceY", 4, 2, 0, 2, Q("55 mm")),
    Sketcher.Constraint("DistanceY", -1, 1, 0, 2, Q("23.318023 mm")),
])
pad8 = body4.newObject("PartDesign::Pad", "Pad007")
pad8.Profile = sketch21
pad8.Length = 5
pad8.Reversed = True

sketch22 = body4.newObject("Sketcher::SketchObject", "Sketch021")
sketch22.AttachmentSupport = (doc.getObject("YZ_Plane003"), [""])
sketch22.MapMode = "FlatFace"
sketch22.AttachmentOffset = App.Placement(V(0, 0, 61), App.Rotation())
add_polygon(sketch22, [(-10, -10), (-17, -10), (-17, -6), (-10, -6)])
add_polygon(sketch22, [(17, -10), (10, -10), (10, -6), (17, -6)])
sketch22.addConstraint([
    Sketcher.Constraint("Horizontal", 0),
    Sketcher.Constraint("Vertical", 1),
    Sketcher.Constraint("Horizontal", 2),
    Sketcher.Constraint("Vertical", 3),
    Sketcher.Constraint("Horizontal", 4),
    Sketcher.Constraint("Vertical", 5),
    Sketcher.Constraint("Horizontal", 6),
    Sketcher.Constraint("Vertical", 7),
    Sketcher.Constraint("Horizontal", 3, 2, 4, 2),
    Sketcher.Constraint("Horizontal", 2, 2, 5, 2),
    Sketcher.Constraint("Equal", 2, 4),
    Sketcher.Constraint("DistanceX", 0, 2, 0, 1, Q("7 mm")),
    Sketcher.Constraint("DistanceY", 1, 1, 1, 2, Q("5 mm")),
    Sketcher.Constraint("DistanceX", 3, 2, 4, 2, Q("20 mm")),
    Sketcher.Constraint("DistanceY", 0, 2, -1, 1, Q("10.5 mm")),
    Sketcher.Constraint("DistanceX", 0, 2, -1, 1, Q("17.181977 mm")),
])
pocket14 = body4.newObject("PartDesign::Pocket", "Pocket013")
pocket14.Profile = sketch22
pocket14.Length = 8
pocket14.Reversed = True

sketch23 = body4.newObject("Sketcher::SketchObject", "Sketch022")
sketch23.AttachmentSupport = (doc.getObject("XY_Plane003"), [""])
sketch23.MapMode = "FlatFace"
sketch23.AttachmentOffset = App.Placement(V(0, 0, -16), App.Rotation())
sketch23.addGeometry([
    Part.Circle(V(65, 13.3, 0), V(0, 0, 1), 1.6),
    Part.Circle(V(65, -13.7, 0), V(0, 0, 1), 1.6),
], False)
sketch23.addConstraint([
    Sketcher.Constraint("Vertical", 0, 3, 1, 3),
    Sketcher.Constraint("Diameter", 0, Q("3.2 mm")),
    Sketcher.Constraint("DistanceX", -1, 1, 0, 3, Q("65 mm")),
    Sketcher.Constraint("Diameter", 1, Q("3.17385 mm")),
    Sketcher.Constraint("DistanceY", -1, 1, 0, 3, Q("13.317231 mm")),
    Sketcher.Constraint("DistanceY", 1, 3, -1, 1, Q("13.684354 mm")),
])
pocket15 = body4.newObject("PartDesign::Pocket", "Pocket014")
pocket15.Profile = sketch23
pocket15.Length = 5.5
pocket15.Reversed = True

sketch24 = body4.newObject("Sketcher::SketchObject", "Sketch023")
sketch24.AttachmentSupport = (doc.getObject("YZ_Plane003"), [""])
sketch24.MapMode = "FlatFace"
sketch24.AttachmentOffset = App.Placement(V(0, 0, -61), App.Rotation())
add_polygon(sketch24, [(13, -6), (6, -6), (6, -10), (13, -10)])
sketch24.addConstraint([
    Sketcher.Constraint("Horizontal", 0),
    Sketcher.Constraint("Vertical", 1),
    Sketcher.Constraint("Horizontal", 2),
    Sketcher.Constraint("Vertical", 3),
    Sketcher.Constraint("DistanceX", 0, 2, 0, 1, Q("7 mm")),
    Sketcher.Constraint("DistanceY", 1, 2, 1, 1, Q("5 mm")),
    Sketcher.Constraint("DistanceY", 0, 2, -1, 1, Q("5.5 mm")),
    Sketcher.Constraint("DistanceX", -1, 1, 0, 2, Q("5.918023 mm")),
])
pocket16 = body4.newObject("PartDesign::Pocket", "Pocket015")
pocket16.Profile = sketch24
pocket16.Length = 8

sketch25 = body4.newObject("Sketcher::SketchObject", "Sketch024")
sketch25.AttachmentSupport = (doc.getObject("XY_Plane003"), [""])
sketch25.MapMode = "FlatFace"
sketch25.AttachmentOffset = App.Placement(V(0, 0, -16), App.Rotation())
sketch25.addGeometry(Part.Circle(V(-65, 9.4, 0), V(0, 0, 1), 1.6), False)
sketch25.addConstraint([
    Sketcher.Constraint("Diameter", 0, Q("3.2 mm")),
    Sketcher.Constraint("DistanceX", 0, 3, -1, 1, Q("65 mm")),
    Sketcher.Constraint("DistanceY", -1, 1, 0, 3, Q("9.418023 mm")),
])
pocket17 = body4.newObject("PartDesign::Pocket", "Pocket016")
pocket17.Profile = sketch25
pocket17.Length = 10.5
pocket17.Reversed = True
mirroring.Visibility = False
mirroring2.Visibility = False

doc.recompute()
